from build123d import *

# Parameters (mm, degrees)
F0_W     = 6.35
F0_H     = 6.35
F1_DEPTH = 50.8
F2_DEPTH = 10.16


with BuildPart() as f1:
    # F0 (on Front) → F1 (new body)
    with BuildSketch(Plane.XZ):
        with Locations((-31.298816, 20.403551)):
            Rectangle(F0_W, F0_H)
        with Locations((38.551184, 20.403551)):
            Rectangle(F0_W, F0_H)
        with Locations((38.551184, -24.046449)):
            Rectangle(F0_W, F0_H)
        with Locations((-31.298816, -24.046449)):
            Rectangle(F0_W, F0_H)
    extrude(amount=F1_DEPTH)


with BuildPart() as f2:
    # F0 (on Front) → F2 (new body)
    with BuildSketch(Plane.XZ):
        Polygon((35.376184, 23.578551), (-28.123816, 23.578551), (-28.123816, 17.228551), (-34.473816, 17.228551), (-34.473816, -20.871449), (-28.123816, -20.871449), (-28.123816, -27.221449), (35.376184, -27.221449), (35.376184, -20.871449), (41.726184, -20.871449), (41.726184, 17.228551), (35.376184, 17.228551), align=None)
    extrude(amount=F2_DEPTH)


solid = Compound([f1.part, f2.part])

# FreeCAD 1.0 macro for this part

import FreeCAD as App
import Part
import Sketcher
from FreeCAD import Vector
Q = App.Units.Quantity

doc = App.newDocument("Part")
body = doc.addObject("PartDesign::Body", "Body")
body.AllowCompound = True

# Sketch on XZ plane
sketch1 = body.newObject("Sketcher::SketchObject", "Sketch")
sketch1.AttachmentSupport = (doc.getObject("XZ_Plane"), [""])
sketch1.MapMode = "FlatFace"
sketch1.addGeometry(Part.LineSegment(Vector(-34, 24, 0), Vector(-34, 17, 0)), False)
sketch1.addGeometry(Part.LineSegment(Vector(-34, 17, 0), Vector(-28, 17, 0)), False)
sketch1.addGeometry(Part.LineSegment(Vector(-28, 17, 0), Vector(-28, 24, 0)), False)
sketch1.addGeometry(Part.LineSegment(Vector(-28, 24, 0), Vector(-34, 24, 0)), False)
sketch1.addGeometry(Part.LineSegment(Vector(35, 24, 0), Vector(35, 17, 0)), False)
sketch1.addGeometry(Part.LineSegment(Vector(35, 17, 0), Vector(42, 17, 0)), False)
sketch1.addGeometry(Part.LineSegment(Vector(42, 17, 0), Vector(42, 24, 0)), False)
sketch1.addGeometry(Part.LineSegment(Vector(42, 24, 0), Vector(35, 24, 0)), False)
sketch1.addGeometry(Part.LineSegment(Vector(35, -21, 0), Vector(35, -27, 0)), False)
sketch1.addGeometry(Part.LineSegment(Vector(35, -27, 0), Vector(42, -27, 0)), False)
sketch1.addGeometry(Part.LineSegment(Vector(42, -27, 0), Vector(42, -21, 0)), False)
sketch1.addGeometry(Part.LineSegment(Vector(42, -21, 0), Vector(35, -21, 0)), False)
sketch1.addGeometry(Part.LineSegment(Vector(-34, -21, 0), Vector(-34, -27, 0)), False)
sketch1.addGeometry(Part.LineSegment(Vector(-34, -27, 0), Vector(-28, -27, 0)), False)
sketch1.addGeometry(Part.LineSegment(Vector(-28, -27, 0), Vector(-28, -21, 0)), False)
sketch1.addGeometry(Part.LineSegment(Vector(-28, -21, 0), Vector(-34, -21, 0)), False)
sketch1.addConstraint(Sketcher.Constraint("Coincident", 0, 2, 1, 1))
sketch1.addConstraint(Sketcher.Constraint("Coincident", 1, 2, 2, 1))
sketch1.addConstraint(Sketcher.Constraint("Coincident", 2, 2, 3, 1))
sketch1.addConstraint(Sketcher.Constraint("Coincident", 3, 2, 0, 1))
sketch1.addConstraint(Sketcher.Constraint("Coincident", 4, 2, 5, 1))
sketch1.addConstraint(Sketcher.Constraint("Coincident", 5, 2, 6, 1))
sketch1.addConstraint(Sketcher.Constraint("Coincident", 6, 2, 7, 1))
sketch1.addConstraint(Sketcher.Constraint("Coincident", 7, 2, 4, 1))
sketch1.addConstraint(Sketcher.Constraint("Coincident", 8, 2, 9, 1))
sketch1.addConstraint(Sketcher.Constraint("Coincident", 9, 2, 10, 1))
sketch1.addConstraint(Sketcher.Constraint("Coincident", 10, 2, 11, 1))
sketch1.addConstraint(Sketcher.Constraint("Coincident", 11, 2, 8, 1))
sketch1.addConstraint(Sketcher.Constraint("Coincident", 12, 2, 13, 1))
sketch1.addConstraint(Sketcher.Constraint("Coincident", 13, 2, 14, 1))
sketch1.addConstraint(Sketcher.Constraint("Coincident", 14, 2, 15, 1))
sketch1.addConstraint(Sketcher.Constraint("Coincident", 15, 2, 12, 1))
sketch1.addConstraint(Sketcher.Constraint("Vertical", 0))
sketch1.addConstraint(Sketcher.Constraint("Horizontal", 1))
sketch1.addConstraint(Sketcher.Constraint("Vertical", 2))
sketch1.addConstraint(Sketcher.Constraint("Horizontal", 3))
sketch1.addConstraint(Sketcher.Constraint("Vertical", 4))
sketch1.addConstraint(Sketcher.Constraint("Horizontal", 5))
sketch1.addConstraint(Sketcher.Constraint("Vertical", 6))
sketch1.addConstraint(Sketcher.Constraint("Horizontal", 7))
sketch1.addConstraint(Sketcher.Constraint("Vertical", 8))
sketch1.addConstraint(Sketcher.Constraint("Horizontal", 9))
sketch1.addConstraint(Sketcher.Constraint("Vertical", 10))
sketch1.addConstraint(Sketcher.Constraint("Horizontal", 11))
sketch1.addConstraint(Sketcher.Constraint("Vertical", 12))
sketch1.addConstraint(Sketcher.Constraint("Horizontal", 13))
sketch1.addConstraint(Sketcher.Constraint("Vertical", 14))
sketch1.addConstraint(Sketcher.Constraint("Horizontal", 15))
sketch1.addConstraint(Sketcher.Constraint("Horizontal", 1, 2, 4, 2))
sketch1.addConstraint(Sketcher.Constraint("Horizontal", 3, 2, 6, 2))
sketch1.addConstraint(Sketcher.Constraint("Horizontal", 9, 2, 12, 2))
sketch1.addConstraint(Sketcher.Constraint("Horizontal", 11, 2, 14, 2))
sketch1.addConstraint(Sketcher.Constraint("Vertical", 7, 2, 8, 2))
sketch1.addConstraint(Sketcher.Constraint("Vertical", 6, 2, 9, 2))
sketch1.addConstraint(Sketcher.Constraint("Vertical", 3, 2, 12, 2))
sketch1.addConstraint(Sketcher.Constraint("Vertical", 2, 2, 13, 2))
sketch1.addConstraint(Sketcher.Constraint("Equal", 3, 5))
sketch1.addConstraint(Sketcher.Constraint("Equal", 15, 0))
sketch1.addConstraint(Sketcher.Constraint("Equal", 6, 8))
sketch1.addConstraint(Sketcher.Constraint("DistanceX", 0, 2, 5, 2, Q("3 in")))
sketch1.addConstraint(Sketcher.Constraint("DistanceY", 8, 2, 7, 2, Q("2 in")))
sketch1.addConstraint(Sketcher.Constraint("DistanceX", 1, 1, 1, 2, Q("0.25 in")))
sketch1.addConstraint(Sketcher.Constraint("DistanceY", -1, 1, 0, 2, Q("17.228551 mm")))
sketch1.addConstraint(Sketcher.Constraint("DistanceX", 0, 2, -1, 1, Q("34.473816 mm")))
pad1 = body.newObject("PartDesign::Pad", "Pad")
pad1.Profile = sketch1
pad1.Length = Q("2 in")
body2 = doc.addObject("PartDesign::Body", "Body001")

# Sketch on XZ plane
sketch2 = body2.newObject("Sketcher::SketchObject", "Sketch001")
sketch2.AttachmentSupport = (doc.getObject("XZ_Plane001"), [""])
sketch2.MapMode = "FlatFace"
sketch2.addGeometry(Part.LineSegment(Vector(35, 24, 0), Vector(-28, 24, 0)), False)
sketch2.addGeometry(Part.LineSegment(Vector(-28, 24, 0), Vector(-28, 17, 0)), False)
sketch2.addGeometry(Part.LineSegment(Vector(-28, 17, 0), Vector(-34, 17, 0)), False)
sketch2.addGeometry(Part.LineSegment(Vector(-34, 17, 0), Vector(-34, -21, 0)), False)
sketch2.addGeometry(Part.LineSegment(Vector(-34, -21, 0), Vector(-28, -21, 0)), False)
sketch2.addGeometry(Part.LineSegment(Vector(-28, -21, 0), Vector(-28, -27, 0)), False)
sketch2.addGeometry(Part.LineSegment(Vector(-28, -27, 0), Vector(35, -27, 0)), False)
sketch2.addGeometry(Part.LineSegment(Vector(35, -27, 0), Vector(35, -21, 0)), False)
sketch2.addGeometry(Part.LineSegment(Vector(35, -21, 0), Vector(42, -21, 0)), False)
sketch2.addGeometry(Part.LineSegment(Vector(42, -21, 0), Vector(42, 17, 0)), False)
sketch2.addGeometry(Part.LineSegment(Vector(42, 17, 0), Vector(35, 17, 0)), False)
sketch2.addGeometry(Part.LineSegment(Vector(35, 17, 0), Vector(35, 24, 0)), False)
sketch2.addConstraint(Sketcher.Constraint("Coincident", 0, 2, 1, 1))
sketch2.addConstraint(Sketcher.Constraint("Coincident", 1, 2, 2, 1))
sketch2.addConstraint(Sketcher.Constraint("Coincident", 2, 2, 3, 1))
sketch2.addConstraint(Sketcher.Constraint("Coincident", 3, 2, 4, 1))
sketch2.addConstraint(Sketcher.Constraint("Coincident", 4, 2, 5, 1))
sketch2.addConstraint(Sketcher.Constraint("Coincident", 5, 2, 6, 1))
sketch2.addConstraint(Sketcher.Constraint("Coincident", 6, 2, 7, 1))
sketch2.addConstraint(Sketcher.Constraint("Coincident", 7, 2, 8, 1))
sketch2.addConstraint(Sketcher.Constraint("Coincident", 8, 2, 9, 1))
sketch2.addConstraint(Sketcher.Constraint("Coincident", 9, 2, 10, 1))
sketch2.addConstraint(Sketcher.Constraint("Coincident", 10, 2, 11, 1))
sketch2.addConstraint(Sketcher.Constraint("Coincident", 11, 2, 0, 1))
sketch2.addConstraint(Sketcher.Constraint("Horizontal", 0))
sketch2.addConstraint(Sketcher.Constraint("Vertical", 1))
sketch2.addConstraint(Sketcher.Constraint("Horizontal", 2))
sketch2.addConstraint(Sketcher.Constraint("Vertical", 3))
sketch2.addConstraint(Sketcher.Constraint("Horizontal", 4))
sketch2.addConstraint(Sketcher.Constraint("Vertical", 5))
sketch2.addConstraint(Sketcher.Constraint("Horizontal", 6))
sketch2.addConstraint(Sketcher.Constraint("Vertical", 7))
sketch2.addConstraint(Sketcher.Constraint("Horizontal", 8))
sketch2.addConstraint(Sketcher.Constraint("Vertical", 9))
sketch2.addConstraint(Sketcher.Constraint("Horizontal", 10))
sketch2.addConstraint(Sketcher.Constraint("Vertical", 11))
sketch2.addConstraint(Sketcher.Constraint("Horizontal", 4, 2, 7, 2))
sketch2.addConstraint(Sketcher.Constraint("Horizontal", 2, 2, 9, 2))
sketch2.addConstraint(Sketcher.Constraint("Vertical", 1, 2, 4, 2))
sketch2.addConstraint(Sketcher.Constraint("Vertical", 7, 2, 10, 2))
sketch2.addConstraint(Sketcher.Constraint("Equal", 4, 8))
sketch2.addConstraint(Sketcher.Constraint("Equal", 10, 1))
sketch2.addConstraint(Sketcher.Constraint("Equal", 1, 5))
sketch2.addConstraint(Sketcher.Constraint("DistanceX", 0, 2, 0, 1, Q("2.5 in")))
sketch2.addConstraint(Sketcher.Constraint("DistanceY", 3, 2, 3, 1, Q("1.5 in")))
sketch2.addConstraint(Sketcher.Constraint("DistanceY", 5, 2, 0, 2, Q("2 in")))
sketch2.addConstraint(Sketcher.Constraint("DistanceY", -1, 1, 0, 2, Q("23.578551 mm")))
sketch2.addConstraint(Sketcher.Constraint("DistanceX", 0, 2, -1, 1, Q("28.123816 mm")))
pad2 = body2.newObject("PartDesign::Pad", "Pad001")
pad2.Profile = sketch2
pad2.Length = Q("0.4 in")

doc.recompute()
